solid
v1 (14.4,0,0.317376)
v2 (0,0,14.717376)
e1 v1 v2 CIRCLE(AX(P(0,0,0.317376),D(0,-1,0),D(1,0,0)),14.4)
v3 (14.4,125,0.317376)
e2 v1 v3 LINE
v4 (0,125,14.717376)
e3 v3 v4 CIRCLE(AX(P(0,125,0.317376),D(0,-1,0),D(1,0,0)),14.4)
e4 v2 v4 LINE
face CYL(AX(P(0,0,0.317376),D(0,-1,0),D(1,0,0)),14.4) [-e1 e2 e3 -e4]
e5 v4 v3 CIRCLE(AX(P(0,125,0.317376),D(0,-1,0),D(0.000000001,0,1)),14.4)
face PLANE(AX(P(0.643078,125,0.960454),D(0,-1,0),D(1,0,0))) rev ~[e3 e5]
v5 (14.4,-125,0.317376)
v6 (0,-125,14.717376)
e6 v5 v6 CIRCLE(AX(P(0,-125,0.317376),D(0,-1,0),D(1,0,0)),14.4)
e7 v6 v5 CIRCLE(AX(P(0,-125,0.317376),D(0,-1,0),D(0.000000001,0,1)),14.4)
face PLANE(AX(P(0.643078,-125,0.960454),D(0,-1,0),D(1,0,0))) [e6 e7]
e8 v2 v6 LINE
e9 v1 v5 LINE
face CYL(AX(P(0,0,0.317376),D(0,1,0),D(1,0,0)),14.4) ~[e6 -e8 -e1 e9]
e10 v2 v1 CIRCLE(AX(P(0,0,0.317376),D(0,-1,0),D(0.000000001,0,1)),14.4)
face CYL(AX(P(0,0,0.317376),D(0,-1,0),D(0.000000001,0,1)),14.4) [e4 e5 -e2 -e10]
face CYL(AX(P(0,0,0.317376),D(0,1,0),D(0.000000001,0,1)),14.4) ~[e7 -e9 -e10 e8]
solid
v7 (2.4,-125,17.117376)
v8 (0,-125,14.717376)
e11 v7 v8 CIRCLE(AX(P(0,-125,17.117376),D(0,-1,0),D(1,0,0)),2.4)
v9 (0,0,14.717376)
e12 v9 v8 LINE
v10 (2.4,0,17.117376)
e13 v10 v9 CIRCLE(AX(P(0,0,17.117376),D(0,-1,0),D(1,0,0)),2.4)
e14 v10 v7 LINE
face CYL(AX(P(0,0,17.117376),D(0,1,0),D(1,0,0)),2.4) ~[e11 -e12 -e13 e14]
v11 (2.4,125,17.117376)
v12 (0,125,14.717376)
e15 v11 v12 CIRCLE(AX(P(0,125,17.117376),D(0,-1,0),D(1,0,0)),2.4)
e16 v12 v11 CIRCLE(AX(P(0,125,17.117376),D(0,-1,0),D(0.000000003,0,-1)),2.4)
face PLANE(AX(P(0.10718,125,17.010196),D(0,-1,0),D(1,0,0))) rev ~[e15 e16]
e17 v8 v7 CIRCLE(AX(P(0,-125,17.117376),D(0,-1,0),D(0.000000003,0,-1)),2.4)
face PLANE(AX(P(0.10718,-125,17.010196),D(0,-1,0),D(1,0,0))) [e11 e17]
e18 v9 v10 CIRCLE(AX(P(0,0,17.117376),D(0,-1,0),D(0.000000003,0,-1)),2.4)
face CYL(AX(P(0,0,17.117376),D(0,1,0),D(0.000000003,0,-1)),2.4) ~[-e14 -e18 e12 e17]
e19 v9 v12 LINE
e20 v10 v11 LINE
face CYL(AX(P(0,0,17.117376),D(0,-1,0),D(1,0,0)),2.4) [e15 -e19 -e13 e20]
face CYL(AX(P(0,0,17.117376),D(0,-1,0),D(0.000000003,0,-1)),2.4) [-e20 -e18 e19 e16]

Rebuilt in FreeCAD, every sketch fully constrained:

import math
import FreeCAD as App
import Part
import Sketcher

V = App.Vector

doc = App.newDocument("Part")
body = doc.addObject("PartDesign::Body", "Body")

# Sketch on XZ plane
sketch1 = body.newObject("Sketcher::SketchObject", "Sketch")
sketch1.AttachmentSupport = (doc.getObject("XZ_Plane"), [""])
sketch1.MapMode = "FlatFace"
sketch1.addGeometry([
    Part.ArcOfCircle(Part.Circle(V(0, 0, 0), V(0, 0, 1), 14), math.radians(90), math.radians(360)),
    Part.ArcOfCircle(Part.Circle(V(0, 0, 0), V(0, 0, 1), 14), math.radians(0), math.radians(90)),
], False)
sketch1.addConstraint([
    Sketcher.Constraint("Tangent", 0, 1, 1, 2),
    Sketcher.Constraint("Coincident", 1, 1, 0, 2),
    Sketcher.Constraint("PointOnObject", 0, 3, -2),
    Sketcher.Constraint("PointOnObject", 0, 1, -2),
    Sketcher.Constraint("Horizontal", 0, 3, 1, 1),
    Sketcher.Constraint("Radius", 0, 14.4),
    Sketcher.Constraint("DistanceY", -1, 1, 0, 3, 0.317376),
])
pad1 = body.newObject("PartDesign::Pad", "Pad")
pad1.Profile = sketch1
pad1.Length = 250
pad1.Midplane = True
body2 = doc.addObject("PartDesign::Body", "Body001")

# Sketch on XZ plane
sketch2 = body2.newObject("Sketcher::SketchObject", "Sketch001")
sketch2.AttachmentSupport = (doc.getObject("XZ_Plane001"), [""])
sketch2.MapMode = "FlatFace"
sketch2.addGeometry([
    Part.ArcOfCircle(Part.Circle(V(0, 17.1, 0), V(0, 0, 1), 2.4), math.radians(0), math.radians(270)),
    Part.ArcOfCircle(Part.Circle(V(0, 17.1, 0), V(0, 0, 1), 2.4), math.radians(-90), math.radians(0)),
], False)
sketch2.addConstraint([
    Sketcher.Constraint("Tangent", 0, 1, 1, 2),
    Sketcher.Constraint("Coincident", 1, 1, 0, 2),
    Sketcher.Constraint("PointOnObject", 0, 3, -2),
    Sketcher.Constraint("PointOnObject", 1, 1, -2),
    Sketcher.Constraint("Horizontal", 1, 3, 0, 1),
    Sketcher.Constraint("Radius", 0, 2.4),
    Sketcher.Constraint("DistanceY", -1, 1, 0, 3, 17.117376),
])
pad2 = body2.newObject("PartDesign::Pad", "Pad001")
pad2.Profile = sketch2
pad2.Length = 250
pad2.Midplane = True

doc.recompute()
